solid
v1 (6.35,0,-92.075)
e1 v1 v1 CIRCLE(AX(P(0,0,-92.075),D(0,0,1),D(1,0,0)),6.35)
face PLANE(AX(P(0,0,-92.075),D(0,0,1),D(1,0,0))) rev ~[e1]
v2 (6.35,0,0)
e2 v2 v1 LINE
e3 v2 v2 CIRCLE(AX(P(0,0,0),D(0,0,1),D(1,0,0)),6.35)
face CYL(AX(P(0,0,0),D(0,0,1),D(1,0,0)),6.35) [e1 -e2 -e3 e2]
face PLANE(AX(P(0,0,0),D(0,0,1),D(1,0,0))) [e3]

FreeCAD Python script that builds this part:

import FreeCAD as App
import Part
import Sketcher

V = App.Vector
Q = App.Units.Quantity

doc = App.newDocument("Part")
body = doc.addObject("PartDesign::Body", "Body")

# Sketch on XY plane
sketch1 = body.newObject("Sketcher::SketchObject", "Sketch")
sketch1.AttachmentSupport = (doc.getObject("XY_Plane"), [""])
sketch1.MapMode = "FlatFace"
sketch1.addGeometry(Part.Circle(V(0, 0, 0), V(0, 0, 1), 6), False)
sketch1.addConstraint([
    Sketcher.Constraint("Coincident", 0, 3, -1, 1),
    Sketcher.Constraint("Diameter", 0, Q("0.5 in")),
])
pad1 = body.newObject("PartDesign::Pad", "Pad")
pad1.Profile = sketch1
pad1.Length = Q("3.625 in")
pad1.Reversed = True

doc.recompute()
